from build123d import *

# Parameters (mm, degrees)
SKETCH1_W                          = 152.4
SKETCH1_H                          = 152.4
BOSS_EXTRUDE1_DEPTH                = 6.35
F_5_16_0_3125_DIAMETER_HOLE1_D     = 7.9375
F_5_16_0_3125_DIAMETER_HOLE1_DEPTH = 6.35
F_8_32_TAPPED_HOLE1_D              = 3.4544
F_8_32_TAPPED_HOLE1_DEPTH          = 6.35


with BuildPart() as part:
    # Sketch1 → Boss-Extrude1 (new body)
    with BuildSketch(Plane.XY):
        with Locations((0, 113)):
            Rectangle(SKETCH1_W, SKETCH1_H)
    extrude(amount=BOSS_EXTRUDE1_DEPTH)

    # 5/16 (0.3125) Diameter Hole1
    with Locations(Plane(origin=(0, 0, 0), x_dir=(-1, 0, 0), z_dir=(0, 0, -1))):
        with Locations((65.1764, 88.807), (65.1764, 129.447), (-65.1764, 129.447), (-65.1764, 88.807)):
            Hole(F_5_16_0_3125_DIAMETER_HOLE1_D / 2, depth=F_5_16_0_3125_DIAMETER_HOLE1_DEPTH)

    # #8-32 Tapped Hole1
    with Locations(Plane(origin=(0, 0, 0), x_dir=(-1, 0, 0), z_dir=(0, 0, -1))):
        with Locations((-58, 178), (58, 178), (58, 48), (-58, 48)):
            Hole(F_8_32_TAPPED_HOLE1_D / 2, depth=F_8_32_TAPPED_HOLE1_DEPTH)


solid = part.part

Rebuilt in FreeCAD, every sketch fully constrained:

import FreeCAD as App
import Part
import Sketcher

V = App.Vector
Q = App.Units.Quantity

doc = App.newDocument("Part")
body = doc.addObject("PartDesign::Body", "Body")

# Sketch on XY plane
sketch1 = body.newObject("Sketcher::SketchObject", "Sketch")
sketch1.AttachmentSupport = (doc.getObject("XY_Plane"), [""])
sketch1.MapMode = "FlatFace"
sketch1.addGeometry(Part.LineSegment(V(-76.2, 189.2, 0), V(-76.2, 36.8, 0)), False)
sketch1.addGeometry(Part.LineSegment(V(-76.2, 36.8, 0), V(76.2, 36.8, 0)), False)
sketch1.addGeometry(Part.LineSegment(V(76.2, 36.8, 0), V(76.2, 189.2, 0)), False)
sketch1.addGeometry(Part.LineSegment(V(76.2, 189.2, 0), V(-76.2, 189.2, 0)), False)
sketch1.addConstraint(Sketcher.Constraint("Coincident", 0, 2, 1, 1))
sketch1.addConstraint(Sketcher.Constraint("Coincident", 1, 2, 2, 1))
sketch1.addConstraint(Sketcher.Constraint("Coincident", 2, 2, 3, 1))
sketch1.addConstraint(Sketcher.Constraint("Coincident", 3, 2, 0, 1))
sketch1.addConstraint(Sketcher.Constraint("Vertical", 0))
sketch1.addConstraint(Sketcher.Constraint("Horizontal", 1))
sketch1.addConstraint(Sketcher.Constraint("Vertical", 2))
sketch1.addConstraint(Sketcher.Constraint("Horizontal", 3))
sketch1.addConstraint(Sketcher.Constraint("Equal", 3, 0))
sketch1.addConstraint(Sketcher.Constraint("DistanceX", 1, 1, 1, 2, Q("6 in")))
sketch1.addConstraint(Sketcher.Constraint("DistanceX", 0, 2, -1, 1, Q("3 in")))
sketch1.addConstraint(Sketcher.Constraint("DistanceY", -1, 1, 0, 2, 36.8))
pad1 = body.newObject("PartDesign::Pad", "Pad")
pad1.Profile = sketch1
pad1.Length = Q("0.25 in")

# Sketch on XY plane
sketch2 = body.newObject("Sketcher::SketchObject", "Sketch001")
sketch2.AttachmentSupport = (doc.getObject("XY_Plane"), [""])
sketch2.MapMode = "FlatFace"
sketch2.addGeometry(Part.Circle(V(-65.1764, 88.807, 0), V(0, 0, 1), 3.96875), False)
sketch2.addGeometry(Part.Circle(V(-65.1764, 129.447, 0), V(0, 0, 1), 3.96875), False)
sketch2.addGeometry(Part.Circle(V(65.1764, 129.447, 0), V(0, 0, 1), 3.96875), False)
sketch2.addGeometry(Part.Circle(V(65.1764, 88.807, 0), V(0, 0, 1), 3.96875), False)
sketch2.addConstraint(Sketcher.Constraint("Equal", 0, 1))
sketch2.addConstraint(Sketcher.Constraint("Equal", 1, 2))
sketch2.addConstraint(Sketcher.Constraint("Equal", 2, 3))
sketch2.addConstraint(Sketcher.Constraint("Symmetric", 1, 3, 2, 3, -2))
sketch2.addConstraint(Sketcher.Constraint("Symmetric", 0, 3, 3, 3, -2))
sketch2.addConstraint(Sketcher.Constraint("Vertical", 0, 3, 1, 3))
sketch2.addConstraint(Sketcher.Constraint("Diameter", 0, Q("0.3125 in")))
sketch2.addConstraint(Sketcher.Constraint("DistanceY", 0, 3, 1, 3, Q("1.6 in")))
sketch2.addConstraint(Sketcher.Constraint("DistanceX", 0, 3, -1, 1, Q("2.566 in")))
sketch2.addConstraint(Sketcher.Constraint("DistanceY", -1, 1, 0, 3, 88.807))
doc.recompute()
hole = body.newObject("PartDesign::Hole", "Hole")
hole.Profile = sketch2
hole.ThreadType = "None"
hole.Diameter = Q("0.3125 in")
hole.DepthType = "Dimension"
hole.Depth = Q("0.25 in")
hole.DrillPoint = "Flat"
hole.Reversed = True

# Sketch on XY plane
sketch3 = body.newObject("Sketcher::SketchObject", "Sketch002")
sketch3.AttachmentSupport = (doc.getObject("XY_Plane"), [""])
sketch3.MapMode = "FlatFace"
sketch3.addGeometry(Part.Circle(V(58, 178, 0), V(0, 0, 1), 1.7272), False)
sketch3.addGeometry(Part.Circle(V(-58, 178, 0), V(0, 0, 1), 1.7272), False)
sketch3.addGeometry(Part.Circle(V(-58, 48, 0), V(0, 0, 1), 1.7272), False)
sketch3.addGeometry(Part.Circle(V(58, 48, 0), V(0, 0, 1), 1.7272), False)
sketch3.addConstraint(Sketcher.Constraint("Equal", 0, 1))
sketch3.addConstraint(Sketcher.Constraint("Equal", 1, 2))
sketch3.addConstraint(Sketcher.Constraint("Equal", 2, 3))
sketch3.addConstraint(Sketcher.Constraint("Symmetric", 0, 3, 1, 3, -2))
sketch3.addConstraint(Sketcher.Constraint("Symmetric", 2, 3, 3, 3, -2))
sketch3.addConstraint(Sketcher.Constraint("Vertical", 1, 3, 2, 3))
sketch3.addConstraint(Sketcher.Constraint("Diameter", 0, Q("0.136 in")))
sketch3.addConstraint(Sketcher.Constraint("DistanceX", -1, 1, 0, 3, 58.0))
sketch3.addConstraint(Sketcher.Constraint("DistanceY", -1, 1, 0, 3, 178.0))
sketch3.addConstraint(Sketcher.Constraint("DistanceY", -1, 1, 2, 3, 48.0))
doc.recompute()
hole2 = body.newObject("PartDesign::Hole", "Hole001")
hole2.Profile = sketch3
hole2.ThreadType = "None"
hole2.Diameter = Q("0.136 in")
hole2.DepthType = "Dimension"
hole2.Depth = Q("0.25 in")
hole2.DrillPoint = "Flat"
hole2.Reversed = True

doc.recompute()
